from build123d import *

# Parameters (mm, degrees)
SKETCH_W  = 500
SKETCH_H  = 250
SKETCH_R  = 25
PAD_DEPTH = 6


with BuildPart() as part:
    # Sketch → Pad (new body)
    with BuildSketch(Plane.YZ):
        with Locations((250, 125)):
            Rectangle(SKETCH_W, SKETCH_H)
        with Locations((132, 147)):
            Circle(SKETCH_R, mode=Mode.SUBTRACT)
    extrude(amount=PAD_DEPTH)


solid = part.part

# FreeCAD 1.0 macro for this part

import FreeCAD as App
import Part
import Sketcher

V = App.Vector

doc = App.newDocument("Part")
body = doc.addObject("PartDesign::Body", "Body")

# Sketch on YZ plane
sketch1 = body.newObject("Sketcher::SketchObject", "Sketch")
sketch1.AttachmentSupport = (doc.getObject("YZ_Plane"), [""])
sketch1.MapMode = "FlatFace"
sketch1.addGeometry(Part.LineSegment(V(0, 250, 0), V(0, 0, 0)), False)
sketch1.addGeometry(Part.LineSegment(V(0, 0, 0), V(500, 0, 0)), False)
sketch1.addGeometry(Part.LineSegment(V(500, 0, 0), V(500, 250, 0)), False)
sketch1.addGeometry(Part.LineSegment(V(500, 250, 0), V(0, 250, 0)), False)
sketch1.addGeometry(Part.Circle(V(132, 147, 0), V(0, 0, 1), 25), False)
sketch1.addConstraint(Sketcher.Constraint("Coincident", 0, 2, 1, 1))
sketch1.addConstraint(Sketcher.Constraint("Coincident", 1, 2, 2, 1))
sketch1.addConstraint(Sketcher.Constraint("Coincident", 2, 2, 3, 1))
sketch1.addConstraint(Sketcher.Constraint("Coincident", 3, 2, 0, 1))
sketch1.addConstraint(Sketcher.Constraint("Vertical", 0))
sketch1.addConstraint(Sketcher.Constraint("Horizontal", 1))
sketch1.addConstraint(Sketcher.Constraint("Vertical", 2))
sketch1.addConstraint(Sketcher.Constraint("Horizontal", 3))
sketch1.addConstraint(Sketcher.Constraint("Coincident", 0, 2, -1, 1))
sketch1.addConstraint(Sketcher.Constraint("Diameter", 4, 50.0))
sketch1.addConstraint(Sketcher.Constraint("DistanceX", 1, 1, 1, 2, 500.0))
sketch1.addConstraint(Sketcher.Constraint("DistanceY", 0, 2, 0, 1, 250.0))
sketch1.addConstraint(Sketcher.Constraint("DistanceX", -1, 1, 4, 3, 132.0))
sketch1.addConstraint(Sketcher.Constraint("DistanceY", -1, 1, 4, 3, 147.0))
pad1 = body.newObject("PartDesign::Pad", "Pad")
pad1.Profile = sketch1
pad1.Length = 6

doc.recompute()
